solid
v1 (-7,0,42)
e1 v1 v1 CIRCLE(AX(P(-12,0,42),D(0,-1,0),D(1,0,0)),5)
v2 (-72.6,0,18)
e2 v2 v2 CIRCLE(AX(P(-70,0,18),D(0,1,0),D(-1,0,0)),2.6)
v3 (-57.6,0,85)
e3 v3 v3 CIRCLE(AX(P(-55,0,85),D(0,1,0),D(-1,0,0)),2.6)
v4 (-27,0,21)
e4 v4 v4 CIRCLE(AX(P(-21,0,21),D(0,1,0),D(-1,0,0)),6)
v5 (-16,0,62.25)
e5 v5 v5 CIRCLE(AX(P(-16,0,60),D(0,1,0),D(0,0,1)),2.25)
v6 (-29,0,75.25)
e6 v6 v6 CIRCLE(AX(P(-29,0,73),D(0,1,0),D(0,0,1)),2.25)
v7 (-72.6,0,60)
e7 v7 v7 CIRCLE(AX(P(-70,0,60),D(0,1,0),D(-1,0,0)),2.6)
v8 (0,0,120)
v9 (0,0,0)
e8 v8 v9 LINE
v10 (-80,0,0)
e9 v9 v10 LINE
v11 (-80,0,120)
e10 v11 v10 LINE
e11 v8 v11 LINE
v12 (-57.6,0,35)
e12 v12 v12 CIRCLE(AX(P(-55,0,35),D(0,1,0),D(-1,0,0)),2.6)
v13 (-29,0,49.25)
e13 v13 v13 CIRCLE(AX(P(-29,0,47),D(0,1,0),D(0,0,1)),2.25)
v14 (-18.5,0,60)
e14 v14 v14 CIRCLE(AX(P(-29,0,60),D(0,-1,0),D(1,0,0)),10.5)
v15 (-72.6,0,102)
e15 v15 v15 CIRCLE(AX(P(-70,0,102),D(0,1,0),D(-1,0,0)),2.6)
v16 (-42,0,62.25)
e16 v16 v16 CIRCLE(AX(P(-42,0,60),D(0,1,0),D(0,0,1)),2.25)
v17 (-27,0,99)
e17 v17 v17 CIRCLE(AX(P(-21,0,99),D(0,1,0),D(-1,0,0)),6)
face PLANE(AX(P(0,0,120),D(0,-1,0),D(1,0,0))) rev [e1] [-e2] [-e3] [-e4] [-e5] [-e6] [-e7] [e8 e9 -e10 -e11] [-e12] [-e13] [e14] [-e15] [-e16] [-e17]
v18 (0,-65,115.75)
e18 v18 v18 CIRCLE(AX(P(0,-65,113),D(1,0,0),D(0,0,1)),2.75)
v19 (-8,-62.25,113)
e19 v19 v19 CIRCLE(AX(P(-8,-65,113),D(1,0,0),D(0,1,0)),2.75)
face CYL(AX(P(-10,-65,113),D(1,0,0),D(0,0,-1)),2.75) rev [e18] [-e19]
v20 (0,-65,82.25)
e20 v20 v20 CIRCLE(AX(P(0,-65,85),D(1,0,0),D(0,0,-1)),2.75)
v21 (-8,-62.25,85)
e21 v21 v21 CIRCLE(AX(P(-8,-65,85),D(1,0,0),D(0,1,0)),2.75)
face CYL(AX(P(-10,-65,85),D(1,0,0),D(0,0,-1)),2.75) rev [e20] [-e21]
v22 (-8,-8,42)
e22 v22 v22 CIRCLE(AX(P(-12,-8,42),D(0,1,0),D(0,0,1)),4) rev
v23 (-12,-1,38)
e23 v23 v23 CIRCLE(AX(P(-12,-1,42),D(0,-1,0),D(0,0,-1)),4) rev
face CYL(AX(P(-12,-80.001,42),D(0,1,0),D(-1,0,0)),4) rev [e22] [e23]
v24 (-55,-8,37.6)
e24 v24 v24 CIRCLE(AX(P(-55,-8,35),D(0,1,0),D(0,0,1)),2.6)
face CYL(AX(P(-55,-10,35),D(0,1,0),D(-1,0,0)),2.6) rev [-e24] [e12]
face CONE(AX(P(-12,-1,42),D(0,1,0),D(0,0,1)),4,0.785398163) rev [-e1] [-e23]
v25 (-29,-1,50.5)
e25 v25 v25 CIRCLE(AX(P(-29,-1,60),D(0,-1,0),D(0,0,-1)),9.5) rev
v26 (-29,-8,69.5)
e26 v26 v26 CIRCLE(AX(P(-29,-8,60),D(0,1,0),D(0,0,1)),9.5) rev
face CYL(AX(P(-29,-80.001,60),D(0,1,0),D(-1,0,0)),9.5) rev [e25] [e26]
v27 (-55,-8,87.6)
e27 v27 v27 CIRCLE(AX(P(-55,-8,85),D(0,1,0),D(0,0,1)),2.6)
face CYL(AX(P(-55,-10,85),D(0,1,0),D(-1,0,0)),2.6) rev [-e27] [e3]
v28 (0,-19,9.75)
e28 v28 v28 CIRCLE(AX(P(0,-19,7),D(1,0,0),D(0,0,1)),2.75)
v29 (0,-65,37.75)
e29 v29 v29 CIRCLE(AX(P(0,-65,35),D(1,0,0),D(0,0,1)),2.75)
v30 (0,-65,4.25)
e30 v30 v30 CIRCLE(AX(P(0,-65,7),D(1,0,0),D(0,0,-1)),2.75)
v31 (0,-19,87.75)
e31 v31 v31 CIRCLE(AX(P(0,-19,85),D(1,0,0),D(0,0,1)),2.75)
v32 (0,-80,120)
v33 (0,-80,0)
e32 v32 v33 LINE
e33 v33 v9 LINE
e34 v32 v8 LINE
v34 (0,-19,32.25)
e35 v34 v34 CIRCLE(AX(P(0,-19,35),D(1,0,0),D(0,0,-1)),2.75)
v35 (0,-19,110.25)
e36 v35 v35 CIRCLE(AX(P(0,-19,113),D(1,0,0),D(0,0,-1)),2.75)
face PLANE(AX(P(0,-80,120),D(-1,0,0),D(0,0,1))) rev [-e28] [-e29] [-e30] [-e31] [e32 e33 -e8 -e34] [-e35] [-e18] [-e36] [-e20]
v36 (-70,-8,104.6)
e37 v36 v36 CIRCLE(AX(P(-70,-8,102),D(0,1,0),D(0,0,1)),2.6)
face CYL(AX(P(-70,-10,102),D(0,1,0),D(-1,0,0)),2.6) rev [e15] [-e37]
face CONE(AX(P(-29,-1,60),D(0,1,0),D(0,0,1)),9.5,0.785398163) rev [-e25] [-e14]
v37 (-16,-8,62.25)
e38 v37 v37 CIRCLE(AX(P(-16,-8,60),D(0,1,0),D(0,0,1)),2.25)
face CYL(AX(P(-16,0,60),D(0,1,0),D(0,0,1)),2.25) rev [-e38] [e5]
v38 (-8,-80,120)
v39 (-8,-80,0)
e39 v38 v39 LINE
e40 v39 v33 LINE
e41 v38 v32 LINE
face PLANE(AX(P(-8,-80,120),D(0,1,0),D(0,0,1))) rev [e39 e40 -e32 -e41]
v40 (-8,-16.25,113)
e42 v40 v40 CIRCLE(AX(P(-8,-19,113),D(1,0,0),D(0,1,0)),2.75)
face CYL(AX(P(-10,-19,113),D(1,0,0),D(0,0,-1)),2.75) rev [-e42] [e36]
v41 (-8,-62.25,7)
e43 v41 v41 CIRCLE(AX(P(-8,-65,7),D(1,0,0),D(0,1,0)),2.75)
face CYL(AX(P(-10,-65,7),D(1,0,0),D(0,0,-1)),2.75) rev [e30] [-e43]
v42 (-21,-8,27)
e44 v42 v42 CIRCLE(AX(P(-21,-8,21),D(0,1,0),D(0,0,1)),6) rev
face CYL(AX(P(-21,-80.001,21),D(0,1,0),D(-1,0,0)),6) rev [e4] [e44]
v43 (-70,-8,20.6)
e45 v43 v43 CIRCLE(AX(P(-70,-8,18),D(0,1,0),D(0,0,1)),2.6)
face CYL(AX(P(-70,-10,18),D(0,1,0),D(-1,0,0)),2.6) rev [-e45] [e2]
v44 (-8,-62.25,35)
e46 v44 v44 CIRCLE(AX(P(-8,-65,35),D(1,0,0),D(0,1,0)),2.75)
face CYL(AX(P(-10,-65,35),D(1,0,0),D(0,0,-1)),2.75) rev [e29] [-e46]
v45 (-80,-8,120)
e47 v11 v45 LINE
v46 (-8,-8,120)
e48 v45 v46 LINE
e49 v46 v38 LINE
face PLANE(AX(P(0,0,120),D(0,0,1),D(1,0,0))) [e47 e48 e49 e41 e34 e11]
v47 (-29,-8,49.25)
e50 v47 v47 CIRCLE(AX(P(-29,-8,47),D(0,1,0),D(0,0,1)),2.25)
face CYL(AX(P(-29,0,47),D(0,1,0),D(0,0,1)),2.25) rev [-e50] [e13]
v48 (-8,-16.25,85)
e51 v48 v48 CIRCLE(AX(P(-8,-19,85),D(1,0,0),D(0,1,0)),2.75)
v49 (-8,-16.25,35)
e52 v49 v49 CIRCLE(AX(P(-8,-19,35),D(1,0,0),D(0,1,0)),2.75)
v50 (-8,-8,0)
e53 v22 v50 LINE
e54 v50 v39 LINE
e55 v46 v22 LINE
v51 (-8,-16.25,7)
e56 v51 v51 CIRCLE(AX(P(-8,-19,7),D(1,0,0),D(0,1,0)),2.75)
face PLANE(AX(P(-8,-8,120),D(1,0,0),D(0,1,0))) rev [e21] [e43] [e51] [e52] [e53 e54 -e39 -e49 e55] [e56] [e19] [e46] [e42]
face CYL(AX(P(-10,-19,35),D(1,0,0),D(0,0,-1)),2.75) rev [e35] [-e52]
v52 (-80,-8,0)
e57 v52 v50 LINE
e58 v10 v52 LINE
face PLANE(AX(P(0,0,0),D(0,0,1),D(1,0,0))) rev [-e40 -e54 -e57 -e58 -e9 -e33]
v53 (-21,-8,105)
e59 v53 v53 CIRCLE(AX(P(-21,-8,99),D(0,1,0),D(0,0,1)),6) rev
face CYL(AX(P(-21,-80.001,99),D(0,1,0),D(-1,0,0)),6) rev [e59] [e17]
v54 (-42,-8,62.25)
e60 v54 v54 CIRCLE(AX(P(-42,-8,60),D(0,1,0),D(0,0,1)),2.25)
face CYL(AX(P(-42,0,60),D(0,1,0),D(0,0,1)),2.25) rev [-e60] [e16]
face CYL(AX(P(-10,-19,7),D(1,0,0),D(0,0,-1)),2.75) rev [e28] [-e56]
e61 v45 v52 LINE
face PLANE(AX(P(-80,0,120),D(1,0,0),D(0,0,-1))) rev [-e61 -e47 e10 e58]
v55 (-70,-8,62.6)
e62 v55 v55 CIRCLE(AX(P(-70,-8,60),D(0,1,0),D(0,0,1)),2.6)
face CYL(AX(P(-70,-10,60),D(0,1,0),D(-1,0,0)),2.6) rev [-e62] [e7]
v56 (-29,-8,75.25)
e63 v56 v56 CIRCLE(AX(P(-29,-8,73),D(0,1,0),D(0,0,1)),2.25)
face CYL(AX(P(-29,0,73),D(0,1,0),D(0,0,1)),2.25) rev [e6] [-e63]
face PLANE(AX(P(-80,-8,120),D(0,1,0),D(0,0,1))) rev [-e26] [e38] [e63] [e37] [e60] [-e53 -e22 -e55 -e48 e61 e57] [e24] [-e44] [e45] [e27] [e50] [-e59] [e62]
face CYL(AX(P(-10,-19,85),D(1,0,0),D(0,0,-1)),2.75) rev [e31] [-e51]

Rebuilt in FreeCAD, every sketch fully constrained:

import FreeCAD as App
import Part
import Sketcher
from FreeCAD import Vector


def edges_at(feature, points):
    """Names of the edges that pass closest to the given points."""
    edges = feature.Shape.Edges
    near = lambda p: min(range(len(edges)), key=lambda i: edges[i].distToShape(Part.Vertex(*p))[0])
    return sorted({f"Edge{near(p) + 1}" for p in points})


def add_polygon(sketch, points):
    """Adds a closed chain of lines whose ends are joined by coincident constraints."""
    first, n = sketch.GeometryCount, len(points)
    for a, b in zip(points, points[1:] + points[:1]):
        sketch.addGeometry(Part.LineSegment(App.Vector(*a, 0), App.Vector(*b, 0)), False)
    for i in range(n):
        sketch.addConstraint(Sketcher.Constraint("Coincident", first + i, 2, first + (i + 1) % n, 1))

doc = App.newDocument("Part")
body = doc.addObject("PartDesign::Body", "Body")

sketch1 = body.newObject("Sketcher::SketchObject", "Sketch")
sketch1.AttachmentSupport = (doc.getObject("XY_Plane"), [""])
sketch1.MapMode = "FlatFace"
add_polygon(sketch1, [(0, 0), (-80, 0), (-80, -8), (-8, -8), (-8, -80), (0, -80)])
sketch1.addConstraint([
    Sketcher.Constraint("Horizontal", 0),
    Sketcher.Constraint("Vertical", 1),
    Sketcher.Constraint("Horizontal", 2),
    Sketcher.Constraint("Vertical", 3),
    Sketcher.Constraint("Horizontal", 4),
    Sketcher.Constraint("Vertical", 5),
    Sketcher.Constraint("Coincident", 5, 2, -1, 1),
    Sketcher.Constraint("Equal", 4, 1),
    Sketcher.Constraint("Equal", 2, 3),
    Sketcher.Constraint("DistanceX", 0, 2, 0, 1, 80.0),
    Sketcher.Constraint("DistanceX", 2, 1, 2, 2, 72.0),
])
pad1 = body.newObject("PartDesign::Pad", "Pad")
pad1.Profile = sketch1
pad1.Length = 120

sketch2 = body.newObject("Sketcher::SketchObject", "Sketch001")
sketch2.AttachmentSupport = (doc.getObject("XZ_Plane"), [""])
sketch2.MapMode = "FlatFace"
sketch2.addGeometry(Part.Circle(Vector(-21, 21, 0), Vector(0, 0, 1), 6), False)
sketch2.addConstraint([
    Sketcher.Constraint("Diameter", 0, 12.0),
    Sketcher.Constraint("DistanceX", 0, 3, -1, 1, 21.0),
    Sketcher.Constraint("DistanceY", -1, 1, 0, 3, 21.0),
])
pocket1 = body.newObject("PartDesign::Pocket", "Pocket")
pocket1.Profile = sketch2
pocket1.Type = "UpToFirst"
pocket1.Reversed = True

sketch3 = body.newObject("Sketcher::SketchObject", "Sketch002")
sketch3.AttachmentSupport = (doc.getObject("XZ_Plane"), [""])
sketch3.MapMode = "FlatFace"
sketch3.addGeometry(Part.Circle(Vector(-21, 99, 0), Vector(0, 0, 1), 6), False)
sketch3.addConstraint([
    Sketcher.Constraint("Diameter", 0, 12.0),
    Sketcher.Constraint("DistanceX", 0, 3, -1, 1, 21.0),
    Sketcher.Constraint("DistanceY", -1, 1, 0, 3, 99.0),
])
pocket2 = body.newObject("PartDesign::Pocket", "Pocket001")
pocket2.Profile = sketch3
pocket2.Type = "UpToFirst"
pocket2.Reversed = True

sketch4 = body.newObject("Sketcher::SketchObject", "Sketch003")
sketch4.AttachmentSupport = (doc.getObject("XZ_Plane"), [""])
sketch4.MapMode = "FlatFace"
sketch4.addGeometry(Part.Circle(Vector(-29, 60, 0), Vector(0, 0, 1), 10), False)
sketch4.addConstraint([
    Sketcher.Constraint("Diameter", 0, 19.0),
    Sketcher.Constraint("DistanceX", 0, 3, -1, 1, 29.0),
    Sketcher.Constraint("DistanceY", -1, 1, 0, 3, 60.0),
])
pocket3 = body.newObject("PartDesign::Pocket", "Pocket002")
pocket3.Profile = sketch4
pocket3.Type = "UpToFirst"
pocket3.Reversed = True

sketch5 = body.newObject("Sketcher::SketchObject", "Sketch004")
sketch5.AttachmentSupport = (doc.getObject("XZ_Plane"), [""])
sketch5.MapMode = "FlatFace"
sketch5.addGeometry(Part.Circle(Vector(-12, 42, 0), Vector(0, 0, 1), 4), False)
sketch5.addConstraint([
    Sketcher.Constraint("Diameter", 0, 8.0),
    Sketcher.Constraint("DistanceX", 0, 3, -1, 1, 12.0),
    Sketcher.Constraint("DistanceY", -1, 1, 0, 3, 42.0),
])
pocket4 = body.newObject("PartDesign::Pocket", "Pocket003")
pocket4.Profile = sketch5
pocket4.Type = "UpToFirst"
pocket4.Reversed = True

sketch6 = body.newObject("Sketcher::SketchObject", "Sketch005")
sketch6.AttachmentSupport = (doc.getObject("XZ_Plane"), [""])
sketch6.MapMode = "FlatFace"
sketch6.addGeometry([
    Part.Circle(Vector(-29, 47, 0), Vector(0, 0, 1), 2.2),
    Part.Circle(Vector(-42, 60, 0), Vector(0, 0, 1), 2.2),
    Part.Circle(Vector(-29, 73, 0), Vector(0, 0, 1), 2.2),
    Part.Circle(Vector(-16, 60, 0), Vector(0, 0, 1), 2.2),
    Part.Circle(Vector(-29, 60, 0), Vector(0, 0, 1), 2.2),
], False)
sketch6.addConstraint([
    Sketcher.Constraint("Equal", 0, 1),
    Sketcher.Constraint("Equal", 1, 2),
    Sketcher.Constraint("Equal", 2, 3),
    Sketcher.Constraint("Equal", 3, 4),
    Sketcher.Constraint("Horizontal", 1, 3, 3, 3),
    Sketcher.Constraint("Horizontal", 3, 3, 4, 3),
    Sketcher.Constraint("Vertical", 0, 3, 2, 3),
    Sketcher.Constraint("Vertical", 2, 3, 4, 3),
    Sketcher.Constraint("Diameter", 0, 4.5),
    Sketcher.Constraint("DistanceX", 0, 3, -1, 1, 29.0),
    Sketcher.Constraint("DistanceY", -1, 1, 0, 3, 47.0),
    Sketcher.Constraint("DistanceX", 1, 3, -1, 1, 42.0),
    Sketcher.Constraint("DistanceY", -1, 1, 1, 3, 60.0),
    Sketcher.Constraint("DistanceY", -1, 1, 2, 3, 73.0),
    Sketcher.Constraint("DistanceX", 3, 3, -1, 1, 16.0),
])
doc.recompute()
hole = body.newObject("PartDesign::Hole", "Hole")
hole.Profile = sketch6
hole.ThreadType = "None"
hole.Diameter = 4.5
hole.DepthType = "ThroughAll"
hole.Reversed = True

sketch7 = body.newObject("Sketcher::SketchObject", "Sketch006")
sketch7.AttachmentSupport = (doc.getObject("YZ_Plane"), [""])
sketch7.MapMode = "FlatFace"
sketch7.addGeometry([
    Part.Circle(Vector(-19, 113, 0), Vector(0, 0, 1), 2.8),
    Part.Circle(Vector(-19, 85, 0), Vector(0, 0, 1), 2.8),
    Part.Circle(Vector(-19, 35, 0), Vector(0, 0, 1), 2.8),
    Part.Circle(Vector(-19, 7, 0), Vector(0, 0, 1), 2.8),
    Part.Circle(Vector(-65, 85, 0), Vector(0, 0, 1), 2.8),
    Part.Circle(Vector(-65, 113, 0), Vector(0, 0, 1), 2.8),
    Part.Circle(Vector(-65, 7, 0), Vector(0, 0, 1), 2.8),
    Part.Circle(Vector(-65, 35, 0), Vector(0, 0, 1), 2.8),
], False)
sketch7.addConstraint([
    Sketcher.Constraint("Equal", 0, 1),
    Sketcher.Constraint("Equal", 1, 2),
    Sketcher.Constraint("Equal", 2, 3),
    Sketcher.Constraint("Equal", 3, 4),
    Sketcher.Constraint("Equal", 4, 5),
    Sketcher.Constraint("Equal", 5, 6),
    Sketcher.Constraint("Equal", 6, 7),
    Sketcher.Constraint("Horizontal", 1, 3, 4, 3),
    Sketcher.Constraint("Horizontal", 0, 3, 5, 3),
    Sketcher.Constraint("Horizontal", 3, 3, 6, 3),
    Sketcher.Constraint("Horizontal", 2, 3, 7, 3),
    Sketcher.Constraint("Vertical", 0, 3, 1, 3),
    Sketcher.Constraint("Vertical", 1, 3, 2, 3),
    Sketcher.Constraint("Vertical", 2, 3, 3, 3),
    Sketcher.Constraint("Vertical", 4, 3, 5, 3),
    Sketcher.Constraint("Vertical", 5, 3, 6, 3),
    Sketcher.Constraint("Vertical", 6, 3, 7, 3),
    Sketcher.Constraint("Diameter", 0, 5.5),
    Sketcher.Constraint("DistanceX", 0, 3, -1, 1, 19.0),
    Sketcher.Constraint("DistanceY", -1, 1, 0, 3, 113.0),
    Sketcher.Constraint("DistanceY", -1, 1, 1, 3, 85.0),
    Sketcher.Constraint("DistanceY", -1, 1, 2, 3, 35.0),
    Sketcher.Constraint("DistanceY", -1, 1, 3, 3, 7.0),
    Sketcher.Constraint("DistanceX", 4, 3, -1, 1, 65.0),
])
pocket5 = body.newObject("PartDesign::Pocket", "Pocket004")
pocket5.Profile = sketch7
pocket5.Length = 10

sketch8 = body.newObject("Sketcher::SketchObject", "Sketch007")
sketch8.AttachmentSupport = (doc.getObject("XZ_Plane"), [""])
sketch8.MapMode = "FlatFace"
sketch8.addGeometry([
    Part.Circle(Vector(-70, 18, 0), Vector(0, 0, 1), 2.6),
    Part.Circle(Vector(-70, 60, 0), Vector(0, 0, 1), 2.6),
    Part.Circle(Vector(-70, 102, 0), Vector(0, 0, 1), 2.6),
    Part.Circle(Vector(-55, 35, 0), Vector(0, 0, 1), 2.6),
    Part.Circle(Vector(-55, 85, 0), Vector(0, 0, 1), 2.6),
], False)
sketch8.addConstraint([
    Sketcher.Constraint("Equal", 0, 1),
    Sketcher.Constraint("Equal", 1, 2),
    Sketcher.Constraint("Equal", 2, 3),
    Sketcher.Constraint("Equal", 3, 4),
    Sketcher.Constraint("Vertical", 0, 3, 1, 3),
    Sketcher.Constraint("Vertical", 1, 3, 2, 3),
    Sketcher.Constraint("Vertical", 3, 3, 4, 3),
    Sketcher.Constraint("Diameter", 0, 5.2),
    Sketcher.Constraint("DistanceX", 0, 3, -1, 1, 70.0),
    Sketcher.Constraint("DistanceY", -1, 1, 0, 3, 18.0),
    Sketcher.Constraint("DistanceY", -1, 1, 1, 3, 60.0),
    Sketcher.Constraint("DistanceY", -1, 1, 2, 3, 102.0),
    Sketcher.Constraint("DistanceX", 3, 3, -1, 1, 55.0),
    Sketcher.Constraint("DistanceY", -1, 1, 3, 3, 35.0),
    Sketcher.Constraint("DistanceY", -1, 1, 4, 3, 85.0),
])
pocket6 = body.newObject("PartDesign::Pocket", "Pocket005")
pocket6.Profile = sketch8
pocket6.Length = 10
pocket6.Reversed = True
doc.recompute()

chamfer = body.newObject("PartDesign::Chamfer", "Chamfer")
chamfer.Base = (pocket6, edges_at(pocket6, [(-8, 0, 42)]))
chamfer.Size = 1
doc.recompute()

chamfer2 = body.newObject("PartDesign::Chamfer", "Chamfer001")
chamfer2.Base = (chamfer, edges_at(chamfer, [(-19.5, 0, 60)]))
chamfer2.Size = 1

doc.recompute()
